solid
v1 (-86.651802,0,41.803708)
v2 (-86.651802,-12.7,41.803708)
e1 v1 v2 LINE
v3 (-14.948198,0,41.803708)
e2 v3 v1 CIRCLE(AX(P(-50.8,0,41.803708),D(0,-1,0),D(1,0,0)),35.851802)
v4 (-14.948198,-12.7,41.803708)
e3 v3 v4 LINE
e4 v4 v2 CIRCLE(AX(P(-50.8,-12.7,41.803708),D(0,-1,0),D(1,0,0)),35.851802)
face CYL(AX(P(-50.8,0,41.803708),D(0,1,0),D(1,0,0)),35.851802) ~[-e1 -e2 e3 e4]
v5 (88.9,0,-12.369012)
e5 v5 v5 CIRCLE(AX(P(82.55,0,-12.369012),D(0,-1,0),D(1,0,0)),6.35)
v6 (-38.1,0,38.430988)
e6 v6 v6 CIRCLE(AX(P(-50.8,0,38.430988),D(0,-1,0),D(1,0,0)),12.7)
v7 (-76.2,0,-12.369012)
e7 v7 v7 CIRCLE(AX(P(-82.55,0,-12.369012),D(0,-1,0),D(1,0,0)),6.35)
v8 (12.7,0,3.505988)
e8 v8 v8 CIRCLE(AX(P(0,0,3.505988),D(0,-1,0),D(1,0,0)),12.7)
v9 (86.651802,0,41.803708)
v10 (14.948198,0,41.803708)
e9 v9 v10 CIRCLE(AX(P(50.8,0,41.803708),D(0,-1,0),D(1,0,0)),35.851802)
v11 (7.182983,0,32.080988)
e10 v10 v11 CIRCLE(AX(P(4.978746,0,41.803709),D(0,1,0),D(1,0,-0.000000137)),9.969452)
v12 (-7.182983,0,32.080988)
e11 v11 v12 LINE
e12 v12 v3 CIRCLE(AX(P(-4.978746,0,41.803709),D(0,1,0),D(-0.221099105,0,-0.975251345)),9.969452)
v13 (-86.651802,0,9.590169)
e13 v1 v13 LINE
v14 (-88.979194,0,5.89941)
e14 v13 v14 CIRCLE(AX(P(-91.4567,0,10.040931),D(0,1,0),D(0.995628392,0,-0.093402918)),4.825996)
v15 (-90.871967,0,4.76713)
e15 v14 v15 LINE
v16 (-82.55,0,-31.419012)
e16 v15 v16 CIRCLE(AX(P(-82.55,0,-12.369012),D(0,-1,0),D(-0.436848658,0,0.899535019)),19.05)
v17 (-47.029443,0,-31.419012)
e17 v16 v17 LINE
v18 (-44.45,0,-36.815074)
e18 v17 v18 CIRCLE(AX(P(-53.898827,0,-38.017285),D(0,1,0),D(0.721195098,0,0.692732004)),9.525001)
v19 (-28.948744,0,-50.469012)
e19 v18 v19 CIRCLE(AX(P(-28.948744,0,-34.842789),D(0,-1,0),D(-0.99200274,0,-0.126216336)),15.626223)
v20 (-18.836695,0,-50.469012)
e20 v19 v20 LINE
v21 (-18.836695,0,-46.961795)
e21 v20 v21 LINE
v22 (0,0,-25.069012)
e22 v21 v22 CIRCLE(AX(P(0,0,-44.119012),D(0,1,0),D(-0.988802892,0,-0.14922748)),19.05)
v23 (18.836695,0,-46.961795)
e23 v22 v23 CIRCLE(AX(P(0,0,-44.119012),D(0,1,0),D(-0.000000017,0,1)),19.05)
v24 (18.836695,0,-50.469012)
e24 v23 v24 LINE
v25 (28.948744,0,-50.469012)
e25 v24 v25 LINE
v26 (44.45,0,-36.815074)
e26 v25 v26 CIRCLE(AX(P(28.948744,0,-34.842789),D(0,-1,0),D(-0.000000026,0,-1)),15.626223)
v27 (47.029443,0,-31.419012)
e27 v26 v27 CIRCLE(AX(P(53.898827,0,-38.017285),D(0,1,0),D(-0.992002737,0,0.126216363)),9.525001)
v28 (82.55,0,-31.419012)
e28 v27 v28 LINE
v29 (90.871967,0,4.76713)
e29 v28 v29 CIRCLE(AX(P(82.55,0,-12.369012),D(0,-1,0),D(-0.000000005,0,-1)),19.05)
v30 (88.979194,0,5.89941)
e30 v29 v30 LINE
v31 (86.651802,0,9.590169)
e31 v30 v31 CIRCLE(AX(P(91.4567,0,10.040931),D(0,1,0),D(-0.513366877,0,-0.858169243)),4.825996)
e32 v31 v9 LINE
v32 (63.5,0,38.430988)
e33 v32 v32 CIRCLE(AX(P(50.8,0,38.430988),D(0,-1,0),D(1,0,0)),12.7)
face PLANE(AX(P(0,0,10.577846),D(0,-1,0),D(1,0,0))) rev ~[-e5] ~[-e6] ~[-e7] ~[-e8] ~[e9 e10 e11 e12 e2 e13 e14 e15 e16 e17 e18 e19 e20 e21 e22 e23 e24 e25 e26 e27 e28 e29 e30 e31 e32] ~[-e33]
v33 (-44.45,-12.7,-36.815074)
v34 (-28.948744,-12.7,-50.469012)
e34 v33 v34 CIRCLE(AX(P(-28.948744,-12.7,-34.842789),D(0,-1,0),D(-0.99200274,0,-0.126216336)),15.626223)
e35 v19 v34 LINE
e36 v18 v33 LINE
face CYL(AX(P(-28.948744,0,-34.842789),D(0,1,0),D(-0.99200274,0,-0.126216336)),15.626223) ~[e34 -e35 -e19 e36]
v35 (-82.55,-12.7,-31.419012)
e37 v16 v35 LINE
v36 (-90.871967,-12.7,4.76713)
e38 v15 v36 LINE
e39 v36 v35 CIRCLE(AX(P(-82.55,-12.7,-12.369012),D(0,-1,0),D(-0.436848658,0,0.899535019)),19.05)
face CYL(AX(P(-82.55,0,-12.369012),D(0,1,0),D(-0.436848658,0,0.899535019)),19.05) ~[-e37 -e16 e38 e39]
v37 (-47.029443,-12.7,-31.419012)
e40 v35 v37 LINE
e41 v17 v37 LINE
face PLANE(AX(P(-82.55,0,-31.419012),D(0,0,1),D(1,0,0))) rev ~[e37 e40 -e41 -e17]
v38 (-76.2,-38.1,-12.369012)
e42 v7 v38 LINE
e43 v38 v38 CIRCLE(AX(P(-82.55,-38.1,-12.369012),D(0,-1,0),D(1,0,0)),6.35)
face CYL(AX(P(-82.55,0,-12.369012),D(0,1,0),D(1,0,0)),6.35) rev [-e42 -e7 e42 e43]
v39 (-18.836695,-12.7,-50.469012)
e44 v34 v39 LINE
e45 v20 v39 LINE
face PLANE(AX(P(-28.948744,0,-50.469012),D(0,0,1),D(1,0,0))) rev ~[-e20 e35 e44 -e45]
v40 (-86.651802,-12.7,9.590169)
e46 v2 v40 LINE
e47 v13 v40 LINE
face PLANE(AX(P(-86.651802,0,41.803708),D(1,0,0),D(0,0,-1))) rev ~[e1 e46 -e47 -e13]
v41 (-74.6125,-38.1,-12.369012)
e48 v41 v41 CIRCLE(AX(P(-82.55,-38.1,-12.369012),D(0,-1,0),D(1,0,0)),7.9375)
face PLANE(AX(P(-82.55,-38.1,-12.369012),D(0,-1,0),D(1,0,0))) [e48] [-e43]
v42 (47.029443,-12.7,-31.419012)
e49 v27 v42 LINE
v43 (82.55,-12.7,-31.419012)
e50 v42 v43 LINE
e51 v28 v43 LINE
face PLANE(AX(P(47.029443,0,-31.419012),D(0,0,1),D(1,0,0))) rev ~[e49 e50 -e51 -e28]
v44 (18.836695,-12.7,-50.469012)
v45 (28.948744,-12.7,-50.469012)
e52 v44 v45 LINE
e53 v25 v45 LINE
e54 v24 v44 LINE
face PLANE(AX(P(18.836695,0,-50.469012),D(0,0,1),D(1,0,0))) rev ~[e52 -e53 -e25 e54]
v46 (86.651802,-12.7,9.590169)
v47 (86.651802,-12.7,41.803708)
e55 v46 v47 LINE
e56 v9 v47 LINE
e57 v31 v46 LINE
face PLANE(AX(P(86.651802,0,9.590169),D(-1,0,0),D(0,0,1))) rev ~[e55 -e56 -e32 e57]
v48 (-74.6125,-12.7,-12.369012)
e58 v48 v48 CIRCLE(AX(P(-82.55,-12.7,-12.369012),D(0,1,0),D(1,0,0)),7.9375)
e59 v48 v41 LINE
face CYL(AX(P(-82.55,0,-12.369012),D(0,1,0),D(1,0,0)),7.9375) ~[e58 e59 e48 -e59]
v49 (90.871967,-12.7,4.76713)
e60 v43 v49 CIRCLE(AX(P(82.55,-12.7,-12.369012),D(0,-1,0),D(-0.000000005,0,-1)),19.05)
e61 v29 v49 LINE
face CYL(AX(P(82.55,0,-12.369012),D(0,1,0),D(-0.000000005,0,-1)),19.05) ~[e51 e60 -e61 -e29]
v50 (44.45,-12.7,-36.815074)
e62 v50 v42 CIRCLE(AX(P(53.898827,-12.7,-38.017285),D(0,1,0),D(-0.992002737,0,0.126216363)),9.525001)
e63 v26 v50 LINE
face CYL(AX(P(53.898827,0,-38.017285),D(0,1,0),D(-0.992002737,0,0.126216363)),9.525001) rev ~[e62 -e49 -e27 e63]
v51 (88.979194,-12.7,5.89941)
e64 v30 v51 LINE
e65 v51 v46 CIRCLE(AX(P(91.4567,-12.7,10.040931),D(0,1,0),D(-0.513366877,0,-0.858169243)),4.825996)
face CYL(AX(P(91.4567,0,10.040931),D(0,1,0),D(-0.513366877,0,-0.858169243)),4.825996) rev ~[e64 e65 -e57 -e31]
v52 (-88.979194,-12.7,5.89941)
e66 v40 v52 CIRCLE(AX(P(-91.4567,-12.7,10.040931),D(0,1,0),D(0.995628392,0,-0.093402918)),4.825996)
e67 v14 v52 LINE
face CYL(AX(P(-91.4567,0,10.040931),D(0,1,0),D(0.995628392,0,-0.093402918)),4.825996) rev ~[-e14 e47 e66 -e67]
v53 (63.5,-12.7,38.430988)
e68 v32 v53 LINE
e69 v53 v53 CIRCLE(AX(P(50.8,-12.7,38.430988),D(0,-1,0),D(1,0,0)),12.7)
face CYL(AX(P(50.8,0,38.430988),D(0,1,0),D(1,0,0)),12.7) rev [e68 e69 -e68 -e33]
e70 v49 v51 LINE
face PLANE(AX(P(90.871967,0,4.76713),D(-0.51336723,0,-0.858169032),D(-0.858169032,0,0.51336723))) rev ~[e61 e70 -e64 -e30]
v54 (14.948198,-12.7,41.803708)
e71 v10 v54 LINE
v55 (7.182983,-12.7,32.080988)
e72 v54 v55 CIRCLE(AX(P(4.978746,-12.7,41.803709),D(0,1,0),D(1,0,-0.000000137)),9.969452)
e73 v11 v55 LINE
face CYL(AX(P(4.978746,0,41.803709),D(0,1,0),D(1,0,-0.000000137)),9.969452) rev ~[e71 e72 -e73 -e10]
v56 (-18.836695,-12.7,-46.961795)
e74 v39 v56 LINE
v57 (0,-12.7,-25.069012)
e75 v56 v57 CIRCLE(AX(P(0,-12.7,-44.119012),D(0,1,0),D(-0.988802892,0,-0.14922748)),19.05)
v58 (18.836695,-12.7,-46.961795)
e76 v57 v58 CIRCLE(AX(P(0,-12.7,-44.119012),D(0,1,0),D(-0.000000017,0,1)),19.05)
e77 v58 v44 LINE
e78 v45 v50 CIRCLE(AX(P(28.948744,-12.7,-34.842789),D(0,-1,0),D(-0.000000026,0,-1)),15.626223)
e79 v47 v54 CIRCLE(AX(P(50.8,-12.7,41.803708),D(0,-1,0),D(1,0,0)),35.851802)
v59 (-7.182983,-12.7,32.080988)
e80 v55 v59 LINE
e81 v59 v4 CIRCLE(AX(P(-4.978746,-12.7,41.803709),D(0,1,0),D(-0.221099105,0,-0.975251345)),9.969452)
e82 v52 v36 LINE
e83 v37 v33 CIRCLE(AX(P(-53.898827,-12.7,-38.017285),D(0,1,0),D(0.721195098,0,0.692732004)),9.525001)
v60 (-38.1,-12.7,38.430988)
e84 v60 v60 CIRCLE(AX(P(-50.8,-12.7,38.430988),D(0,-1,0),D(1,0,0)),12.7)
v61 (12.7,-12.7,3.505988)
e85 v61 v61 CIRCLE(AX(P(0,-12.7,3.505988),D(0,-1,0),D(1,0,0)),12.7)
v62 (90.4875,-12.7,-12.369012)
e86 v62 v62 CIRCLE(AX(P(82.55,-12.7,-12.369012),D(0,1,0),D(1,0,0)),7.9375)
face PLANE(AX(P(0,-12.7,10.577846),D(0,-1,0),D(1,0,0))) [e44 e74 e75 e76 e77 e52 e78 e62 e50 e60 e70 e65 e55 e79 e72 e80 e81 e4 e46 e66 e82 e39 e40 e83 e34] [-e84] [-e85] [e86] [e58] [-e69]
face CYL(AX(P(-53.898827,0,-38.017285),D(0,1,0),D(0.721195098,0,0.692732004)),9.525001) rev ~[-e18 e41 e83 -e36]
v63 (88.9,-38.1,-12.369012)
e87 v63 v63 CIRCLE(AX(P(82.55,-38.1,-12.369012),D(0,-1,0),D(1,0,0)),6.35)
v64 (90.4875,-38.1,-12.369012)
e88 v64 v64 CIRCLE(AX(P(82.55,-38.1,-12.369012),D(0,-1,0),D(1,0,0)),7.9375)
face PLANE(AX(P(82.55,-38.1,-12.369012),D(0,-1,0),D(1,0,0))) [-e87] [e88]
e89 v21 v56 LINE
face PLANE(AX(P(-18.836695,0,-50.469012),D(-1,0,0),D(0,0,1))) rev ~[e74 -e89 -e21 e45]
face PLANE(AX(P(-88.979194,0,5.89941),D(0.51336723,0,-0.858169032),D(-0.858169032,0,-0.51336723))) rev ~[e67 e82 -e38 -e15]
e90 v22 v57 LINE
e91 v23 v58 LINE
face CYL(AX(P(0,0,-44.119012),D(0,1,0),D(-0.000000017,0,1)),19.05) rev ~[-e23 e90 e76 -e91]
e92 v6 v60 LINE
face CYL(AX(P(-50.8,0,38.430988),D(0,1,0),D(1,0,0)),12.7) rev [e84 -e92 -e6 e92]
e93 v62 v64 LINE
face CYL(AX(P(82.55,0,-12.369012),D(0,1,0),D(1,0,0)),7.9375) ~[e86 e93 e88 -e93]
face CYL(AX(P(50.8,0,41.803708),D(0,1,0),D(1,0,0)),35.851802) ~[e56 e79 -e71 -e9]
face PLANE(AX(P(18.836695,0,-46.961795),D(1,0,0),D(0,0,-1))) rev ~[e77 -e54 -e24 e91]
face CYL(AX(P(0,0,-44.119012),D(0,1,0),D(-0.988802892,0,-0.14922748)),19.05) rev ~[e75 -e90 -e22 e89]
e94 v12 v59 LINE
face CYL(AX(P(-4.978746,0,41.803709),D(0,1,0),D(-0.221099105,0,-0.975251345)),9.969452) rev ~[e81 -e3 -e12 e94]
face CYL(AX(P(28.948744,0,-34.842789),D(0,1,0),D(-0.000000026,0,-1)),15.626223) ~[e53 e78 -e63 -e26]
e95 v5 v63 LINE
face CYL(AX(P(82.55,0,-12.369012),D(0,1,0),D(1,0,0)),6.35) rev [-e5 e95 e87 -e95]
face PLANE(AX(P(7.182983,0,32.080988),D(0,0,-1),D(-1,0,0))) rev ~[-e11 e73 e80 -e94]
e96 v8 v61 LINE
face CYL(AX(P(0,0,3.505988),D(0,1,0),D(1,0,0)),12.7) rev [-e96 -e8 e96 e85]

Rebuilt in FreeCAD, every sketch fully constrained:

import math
import FreeCAD as App
import Part
import Sketcher
from FreeCAD import Vector
Q = App.Units.Quantity

doc = App.newDocument("Part")
body = doc.addObject("PartDesign::Body", "Body")

sketch1 = doc.addObject("Sketcher::SketchObject", "Sketch")
body.addObject(sketch1)
sketch1.AttachmentSupport = (doc.XZ_Plane, [""])
sketch1.MapMode = "FlatFace"
sketch1.addGeometry(Part.ArcOfCircle(Part.Circle(Vector(0, -44.1, 0), Vector(0, 0, 1), 19), math.radians(90), math.radians(189)), False)
sketch1.addGeometry(Part.ArcOfCircle(Part.Circle(Vector(0, -44.1, 0), Vector(0, 0, 1), 19), math.radians(-9), math.radians(90)), False)
sketch1.addGeometry(Part.LineSegment(Vector(18.8, -47, 0), Vector(18.8, -50.5, 0)), False)
sketch1.addGeometry(Part.LineSegment(Vector(18.8, -50.5, 0), Vector(28.9, -50.5, 0)), False)
sketch1.addGeometry(Part.ArcOfCircle(Part.Circle(Vector(28.9, -34.8, 0), Vector(0, 0, 1), 15.6), math.radians(-90), math.radians(-7)), False)
sketch1.addGeometry(Part.ArcOfCircle(Part.Circle(Vector(53.9, -38, 0), Vector(0, 0, 1), 9.5), math.radians(136), math.radians(173)), False)
sketch1.addGeometry(Part.LineSegment(Vector(47, -31.4, 0), Vector(82.5, -31.4, 0)), False)
sketch1.addGeometry(Part.ArcOfCircle(Part.Circle(Vector(82.6, -12.4, 0), Vector(0, 0, 1), 19), math.radians(-90), math.radians(64)), False)
sketch1.addGeometry(Part.LineSegment(Vector(90.9, 4.8, 0), Vector(89, 5.9, 0)), False)
sketch1.addGeometry(Part.ArcOfCircle(Part.Circle(Vector(91.5, 10, 0), Vector(0, 0, 1), 4.8), math.radians(-175), math.radians(-121)), False)
sketch1.addGeometry(Part.LineSegment(Vector(86.7, 9.6, 0), Vector(86.7, 41.8, 0)), False)
sketch1.addGeometry(Part.ArcOfCircle(Part.Circle(Vector(50.8, 41.8, 0), Vector(0, 0, 1), 35.9), math.radians(0), math.radians(180)), False)
sketch1.addGeometry(Part.ArcOfCircle(Part.Circle(Vector(5, 41.8, 0), Vector(0, 0, 1), 10), math.radians(-77), math.radians(0)), False)
sketch1.addGeometry(Part.LineSegment(Vector(7.2, 32.1, 0), Vector(-7.2, 32.1, 0)), False)
sketch1.addGeometry(Part.ArcOfCircle(Part.Circle(Vector(-5, 41.8, 0), Vector(0, 0, 1), 10), math.radians(-180), math.radians(-103)), False)
sketch1.addGeometry(Part.ArcOfCircle(Part.Circle(Vector(-50.8, 41.8, 0), Vector(0, 0, 1), 35.9), math.radians(0), math.radians(180)), False)
sketch1.addGeometry(Part.LineSegment(Vector(-86.7, 41.8, 0), Vector(-86.7, 9.6, 0)), False)
sketch1.addGeometry(Part.ArcOfCircle(Part.Circle(Vector(-91.5, 10, 0), Vector(0, 0, 1), 4.8), math.radians(-59), math.radians(-5)), False)
sketch1.addGeometry(Part.LineSegment(Vector(-89, 5.9, 0), Vector(-90.9, 4.8, 0)), False)
sketch1.addGeometry(Part.ArcOfCircle(Part.Circle(Vector(-82.6, -12.4, 0), Vector(0, 0, 1), 19), math.radians(116), math.radians(270)), False)
sketch1.addGeometry(Part.LineSegment(Vector(-82.5, -31.4, 0), Vector(-47, -31.4, 0)), False)
sketch1.addGeometry(Part.ArcOfCircle(Part.Circle(Vector(-53.9, -38, 0), Vector(0, 0, 1), 9.5), math.radians(7), math.radians(44)), False)
sketch1.addGeometry(Part.ArcOfCircle(Part.Circle(Vector(-28.9, -34.8, 0), Vector(0, 0, 1), 15.6), math.radians(-173), math.radians(-90)), False)
sketch1.addGeometry(Part.LineSegment(Vector(-28.9, -50.5, 0), Vector(-18.8, -50.5, 0)), False)
sketch1.addGeometry(Part.LineSegment(Vector(-18.8, -50.5, 0), Vector(-18.8, -47, 0)), False)
sketch1.addGeometry(Part.Circle(Vector(-82.5, -12.4, 0), Vector(0, 0, 1), 6.3), False)
sketch1.addGeometry(Part.Circle(Vector(82.5, -12.4, 0), Vector(0, 0, 1), 6.3), False)
sketch1.addGeometry(Part.Circle(Vector(0, 3.5, 0), Vector(0, 0, 1), 12.7), False)
sketch1.addGeometry(Part.Circle(Vector(-50.8, 38.4, 0), Vector(0, 0, 1), 12.7), False)
sketch1.addGeometry(Part.Circle(Vector(50.8, 38.4, 0), Vector(0, 0, 1), 12.7), False)
sketch1.addConstraint(Sketcher.Constraint("Tangent", 0, 1, 1, 2))
sketch1.addConstraint(Sketcher.Constraint("Coincident", 1, 1, 2, 1))
sketch1.addConstraint(Sketcher.Constraint("Coincident", 2, 2, 3, 1))
sketch1.addConstraint(Sketcher.Constraint("Tangent", 3, 2, 4, 1))
sketch1.addConstraint(Sketcher.Constraint("Tangent", 4, 2, 5, 2))
sketch1.addConstraint(Sketcher.Constraint("Coincident", 5, 1, 6, 1))
sketch1.addConstraint(Sketcher.Constraint("Tangent", 6, 2, 7, 1))
sketch1.addConstraint(Sketcher.Constraint("Coincident", 7, 2, 8, 1))
sketch1.addConstraint(Sketcher.Constraint("Tangent", 8, 2, 9, 2))
sketch1.addConstraint(Sketcher.Constraint("Coincident", 9, 1, 10, 1))
sketch1.addConstraint(Sketcher.Constraint("Tangent", 10, 2, 11, 1))
sketch1.addConstraint(Sketcher.Constraint("Tangent", 11, 2, 12, 2))
sketch1.addConstraint(Sketcher.Constraint("Coincident", 12, 1, 13, 1))
sketch1.addConstraint(Sketcher.Constraint("Coincident", 13, 2, 14, 2))
sketch1.addConstraint(Sketcher.Constraint("Tangent", 14, 1, 15, 1))
sketch1.addConstraint(Sketcher.Constraint("Tangent", 15, 2, 16, 1))
sketch1.addConstraint(Sketcher.Constraint("Coincident", 16, 2, 17, 2))
sketch1.addConstraint(Sketcher.Constraint("Tangent", 17, 1, 18, 1))
sketch1.addConstraint(Sketcher.Constraint("Coincident", 18, 2, 19, 1))
sketch1.addConstraint(Sketcher.Constraint("Tangent", 19, 2, 20, 1))
sketch1.addConstraint(Sketcher.Constraint("Coincident", 20, 2, 21, 2))
sketch1.addConstraint(Sketcher.Constraint("Tangent", 21, 1, 22, 1))
sketch1.addConstraint(Sketcher.Constraint("Tangent", 22, 2, 23, 1))
sketch1.addConstraint(Sketcher.Constraint("Coincident", 23, 2, 24, 1))
sketch1.addConstraint(Sketcher.Constraint("Coincident", 24, 2, 0, 2))
sketch1.addConstraint(Sketcher.Constraint("Vertical", 2))
sketch1.addConstraint(Sketcher.Constraint("Horizontal", 3))
sketch1.addConstraint(Sketcher.Constraint("Horizontal", 6))
sketch1.addConstraint(Sketcher.Constraint("Vertical", 10))
sketch1.addConstraint(Sketcher.Constraint("Horizontal", 13))
sketch1.addConstraint(Sketcher.Constraint("Vertical", 16))
sketch1.addConstraint(Sketcher.Constraint("Horizontal", 20))
sketch1.addConstraint(Sketcher.Constraint("Horizontal", 23))
sketch1.addConstraint(Sketcher.Constraint("Vertical", 24))
sketch1.addConstraint(Sketcher.Constraint("Coincident", 25, 3, 19, 3))
sketch1.addConstraint(Sketcher.Constraint("Coincident", 26, 3, 7, 3))
sketch1.addConstraint(Sketcher.Constraint("Equal", 0, 1))
sketch1.addConstraint(Sketcher.Constraint("Equal", 1, 7))
sketch1.addConstraint(Sketcher.Constraint("Equal", 12, 14))
sketch1.addConstraint(Sketcher.Constraint("Equal", 11, 15))
sketch1.addConstraint(Sketcher.Constraint("Equal", 9, 17))
sketch1.addConstraint(Sketcher.Constraint("Equal", 7, 19))
sketch1.addConstraint(Sketcher.Constraint("Equal", 5, 21))
sketch1.addConstraint(Sketcher.Constraint("Equal", 4, 22))
sketch1.addConstraint(Sketcher.Constraint("Equal", 25, 26))
sketch1.addConstraint(Sketcher.Constraint("Equal", 27, 28))
sketch1.addConstraint(Sketcher.Constraint("Equal", 28, 29))
sketch1.addConstraint(Sketcher.Constraint("Symmetric", 12, 3, 14, 3, -2))
sketch1.addConstraint(Sketcher.Constraint("Symmetric", 9, 3, 17, 3, -2))
sketch1.addConstraint(Sketcher.Constraint("Symmetric", 7, 3, 19, 3, -2))
sketch1.addConstraint(Sketcher.Constraint("Symmetric", 5, 3, 21, 3, -2))
sketch1.addConstraint(Sketcher.Constraint("Symmetric", 28, 3, 29, 3, -2))
sketch1.addConstraint(Sketcher.Constraint("Symmetric", 2, 2, 23, 2, -2))
sketch1.addConstraint(Sketcher.Constraint("PointOnObject", 0, 3, -2))
sketch1.addConstraint(Sketcher.Constraint("PointOnObject", 27, 3, -2))
sketch1.addConstraint(Sketcher.Constraint("PointOnObject", 0, 1, -2))
sketch1.addConstraint(Sketcher.Constraint("Horizontal", 11, 3, 12, 3))
sketch1.addConstraint(Sketcher.Constraint("Horizontal", 14, 3, 15, 3))
sketch1.addConstraint(Sketcher.Constraint("Horizontal", 8, 2, 17, 1))
sketch1.addConstraint(Sketcher.Constraint("Vertical", 15, 3, 28, 3))
sketch1.addConstraint(Sketcher.Constraint("Diameter", 27, Q("1 in")))
sketch1.addConstraint(Sketcher.Constraint("Diameter", 25, Q("0.5 in")))
sketch1.addConstraint(Sketcher.Constraint("Radius", 0, Q("0.75 in")))
sketch1.addConstraint(Sketcher.Constraint("Radius", 9, Q("0.1899998 in")))
sketch1.addConstraint(Sketcher.Constraint("DistanceX", -1, 1, 11, 3, Q("2 in")))
sketch1.addConstraint(Sketcher.Constraint("Radius", 5, Q("0.375 in")))
sketch1.addConstraint(Sketcher.Constraint("DistanceY", 25, 3, 28, 3, Q("2 in")))
sketch1.addConstraint(Sketcher.Constraint("DistanceY", 2, 2, 0, 1, Q("1 in")))
sketch1.addConstraint(Sketcher.Constraint("DistanceX", 4, 2, 6, 2, Q("1.5 in")))
sketch1.addConstraint(Sketcher.Constraint("DistanceX", -1, 1, 7, 3, Q("3.25 in")))
sketch1.addConstraint(Sketcher.Constraint("DistanceY", 1, 3, 7, 3, Q("1.25 in")))
sketch1.addConstraint(Sketcher.Constraint("DistanceY", 12, 1, 29, 3, Q("0.25 in")))
sketch1.addConstraint(Sketcher.Constraint("Radius", 12, 9.969452))
sketch1.addConstraint(Sketcher.Constraint("DistanceY", 0, 3, 27, 3, Q("1.875 in")))
sketch1.addConstraint(Sketcher.Constraint("Radius", 4, 15.626223))
sketch1.addConstraint(Sketcher.Constraint("Radius", 11, 35.851802))
sketch1.addConstraint(Sketcher.Constraint("DistanceX", 3, 1, 3, 2, 10.112049))
sketch1.addConstraint(Sketcher.Constraint("DistanceY", 10, 1, 10, 2, 32.213539))
sketch1.addConstraint(Sketcher.Constraint("DistanceX", -1, 1, 9, 3, 91.4567))
sketch1.addConstraint(Sketcher.Constraint("DistanceX", 12, 3, 4, 3, 23.969998))
sketch1.addConstraint(Sketcher.Constraint("DistanceY", 4, 3, 12, 3, 76.646499))
sketch1.addConstraint(Sketcher.Constraint("DistanceY", 7, 2, 9, 3, 5.273801))
sketch1.addConstraint(Sketcher.Constraint("DistanceY", 0, 3, -1, 1, 44.119012))
pad1 = doc.addObject("PartDesign::Pad", "Pad")
body.addObject(pad1)
pad1.Profile = sketch1
pad1.Length = Q("0.5 in")

sketch2 = doc.addObject("Sketcher::SketchObject", "Sketch001")
body.addObject(sketch2)
sketch2.AttachmentSupport = (doc.XZ_Plane, [""])
sketch2.MapMode = "FlatFace"
sketch2.addGeometry(Part.Circle(Vector(-83, -12, 0), Vector(0, 0, 1), 8), False)
sketch2.addGeometry(Part.Circle(Vector(-83, -12, 0), Vector(0, 0, 1), 6), False)
sketch2.addGeometry(Part.Circle(Vector(83, -12, 0), Vector(0, 0, 1), 8), False)
sketch2.addGeometry(Part.Circle(Vector(83, -12, 0), Vector(0, 0, 1), 6), False)
sketch2.addConstraint(Sketcher.Constraint("Coincident", 1, 3, 0, 3))
sketch2.addConstraint(Sketcher.Constraint("Coincident", 3, 3, 2, 3))
sketch2.addConstraint(Sketcher.Constraint("Equal", 0, 2))
sketch2.addConstraint(Sketcher.Constraint("Equal", 1, 3))
sketch2.addConstraint(Sketcher.Constraint("Symmetric", 0, 3, 2, 3, -2))
sketch2.addConstraint(Sketcher.Constraint("Diameter", 1, Q("0.5 in")))
sketch2.addConstraint(Sketcher.Constraint("Diameter", 0, Q("0.625 in")))
sketch2.addConstraint(Sketcher.Constraint("DistanceX", 0, 3, 2, 3, Q("6.5 in")))
sketch2.addConstraint(Sketcher.Constraint("DistanceY", 0, 3, -1, 1, 12.369012))
pad2 = doc.addObject("PartDesign::Pad", "Pad001")
body.addObject(pad2)
pad2.Profile = sketch2
pad2.Length = Q("1.5 in")

doc.recompute()
